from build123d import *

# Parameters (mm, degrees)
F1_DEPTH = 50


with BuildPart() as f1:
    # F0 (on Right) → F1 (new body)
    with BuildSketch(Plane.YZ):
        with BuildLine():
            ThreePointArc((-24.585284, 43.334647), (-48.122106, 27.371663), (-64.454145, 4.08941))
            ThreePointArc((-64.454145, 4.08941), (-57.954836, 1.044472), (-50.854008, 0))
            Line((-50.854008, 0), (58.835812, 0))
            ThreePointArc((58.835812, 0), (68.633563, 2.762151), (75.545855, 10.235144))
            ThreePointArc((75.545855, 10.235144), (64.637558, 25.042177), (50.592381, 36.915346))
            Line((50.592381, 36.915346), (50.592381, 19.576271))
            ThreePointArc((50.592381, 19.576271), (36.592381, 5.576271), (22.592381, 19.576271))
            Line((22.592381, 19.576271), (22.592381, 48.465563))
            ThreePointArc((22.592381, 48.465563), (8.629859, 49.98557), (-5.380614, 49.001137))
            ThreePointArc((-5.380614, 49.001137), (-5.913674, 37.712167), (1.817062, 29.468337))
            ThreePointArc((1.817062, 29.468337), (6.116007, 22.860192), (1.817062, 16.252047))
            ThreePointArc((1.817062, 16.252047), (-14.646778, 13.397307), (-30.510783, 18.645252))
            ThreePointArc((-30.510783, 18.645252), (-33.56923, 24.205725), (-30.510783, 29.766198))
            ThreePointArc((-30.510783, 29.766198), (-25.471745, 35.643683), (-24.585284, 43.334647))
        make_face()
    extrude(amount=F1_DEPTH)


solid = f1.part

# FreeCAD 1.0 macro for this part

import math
import FreeCAD as App
import Part
import Sketcher

doc = App.newDocument("Part")
body = doc.addObject("PartDesign::Body", "Body")

sketch1 = doc.addObject("Sketcher::SketchObject", "Sketch")
body.addObject(sketch1)
sketch1.AttachmentSupport = (doc.YZ_Plane, [""])
sketch1.MapMode = "FlatFace"
sketch1.addGeometry([
    Part.ArcOfCircle(Part.Circle(App.Vector(7, -29, 0), App.Vector(0, 0, 1), 79), math.radians(114), math.radians(155)),
    Part.ArcOfCircle(Part.Circle(App.Vector(-51, 25, 0), App.Vector(0, 0, 1), 25), math.radians(-123), math.radians(-90)),
    Part.LineSegment(App.Vector(-51, 0, 0), App.Vector(59, 0, 0)),
    Part.ArcOfCircle(Part.Circle(App.Vector(59, 19, 0), App.Vector(0, 0, 1), 19), math.radians(-90), math.radians(-27)),
    Part.ArcOfCircle(Part.Circle(App.Vector(7, -29, 0), App.Vector(0, 0, 1), 79), math.radians(30), math.radians(56)),
    Part.LineSegment(App.Vector(51, 37, 0), App.Vector(51, 20, 0)),
    Part.ArcOfCircle(Part.Circle(App.Vector(37, 20, 0), App.Vector(0, 0, 1), 14), math.radians(180), math.radians(360)),
    Part.LineSegment(App.Vector(23, 20, 0), App.Vector(23, 48, 0)),
    Part.ArcOfCircle(Part.Circle(App.Vector(7, -29, 0), App.Vector(0, 0, 1), 79), math.radians(79), math.radians(99)),
    Part.ArcOfCircle(Part.Circle(App.Vector(8, 43, 0), App.Vector(0, 0, 1), 15), math.radians(154), math.radians(246)),
    Part.ArcOfCircle(Part.Circle(App.Vector(-1, 23, 0), App.Vector(0, 0, 1), 7), math.radians(-66), math.radians(66)),
    Part.ArcOfCircle(Part.Circle(App.Vector(-12, 48, 0), App.Vector(0, 0, 1), 34), math.radians(-122), math.radians(-66)),
    Part.ArcOfCircle(Part.Circle(App.Vector(-27, 24, 0), App.Vector(0, 0, 1), 7), math.radians(122), math.radians(238)),
    Part.ArcOfCircle(Part.Circle(App.Vector(-38, 41, 0), App.Vector(0, 0, 1), 13), math.radians(-58), math.radians(10)),
], False)
sketch1.addConstraint([
    Sketcher.Constraint("Coincident", 0, 2, 1, 1),
    Sketcher.Constraint("Tangent", 1, 2, 2, 1),
    Sketcher.Constraint("Tangent", 2, 2, 3, 1),
    Sketcher.Constraint("Coincident", 3, 2, 4, 1),
    Sketcher.Constraint("Coincident", 4, 2, 5, 1),
    Sketcher.Constraint("Tangent", 5, 2, 6, 2),
    Sketcher.Constraint("Tangent", 6, 1, 7, 1),
    Sketcher.Constraint("Coincident", 7, 2, 8, 1),
    Sketcher.Constraint("Coincident", 8, 2, 9, 1),
    Sketcher.Constraint("Tangent", 9, 2, 10, 2),
    Sketcher.Constraint("Tangent", 10, 1, 11, 2),
    Sketcher.Constraint("Tangent", 11, 1, 12, 2),
    Sketcher.Constraint("Tangent", 12, 1, 13, 1),
    Sketcher.Constraint("Coincident", 13, 2, 0, 1),
    Sketcher.Constraint("Horizontal", 2),
    Sketcher.Constraint("Vertical", 5),
    Sketcher.Constraint("Vertical", 7),
    Sketcher.Constraint("Coincident", 4, 3, 0, 3),
    Sketcher.Constraint("Coincident", 8, 3, 0, 3),
    Sketcher.Constraint("PointOnObject", 1, 2, -1),
    Sketcher.Constraint("Vertical", 9, 2, 10, 1),
    Sketcher.Constraint("Vertical", 11, 1, 12, 1),
    Sketcher.Constraint("Radius", 6, 14.0),
    Sketcher.Constraint("Radius", 3, 18.758101),
    Sketcher.Constraint("Radius", 4, 78.750668),
    Sketcher.Constraint("Radius", 8, 78.750661),
    Sketcher.Constraint("Radius", 12, 6.58389),
    Sketcher.Constraint("Radius", 0, 78.750664),
    Sketcher.Constraint("Radius", 1, 24.659665),
    Sketcher.Constraint("Radius", 9, 14.502673),
    Sketcher.Constraint("Radius", 10, 7.228344),
    Sketcher.Constraint("Radius", 11, 34.364613),
    Sketcher.Constraint("Radius", 13, 13.227297),
    Sketcher.Constraint("DistanceY", 1, 3, 9, 3, 18.067001),
    Sketcher.Constraint("DistanceY", 0, 2, 13, 3, 36.848),
    Sketcher.Constraint("DistanceX", 2, 1, 2, 2, 109.68982),
    Sketcher.Constraint("DistanceX", 10, 3, 0, 3, 8.234701),
    Sketcher.Constraint("DistanceX", 11, 3, 10, 3, 10.997398),
    Sketcher.Constraint("DistanceX", 13, 3, 11, 3, 25.483802),
    Sketcher.Constraint("DistanceY", 9, 2, 8, 2, 19.5328),
    Sketcher.Constraint("DistanceY", 5, 2, 5, 1, 17.339075),
    Sketcher.Constraint("DistanceY", 7, 1, 7, 2, 28.889292),
    Sketcher.Constraint("DistanceX", 1, 3, -1, 1, 50.854009),
])
pad1 = doc.addObject("PartDesign::Pad", "Pad")
body.addObject(pad1)
pad1.Profile = sketch1
pad1.Length = 50

doc.recompute()
